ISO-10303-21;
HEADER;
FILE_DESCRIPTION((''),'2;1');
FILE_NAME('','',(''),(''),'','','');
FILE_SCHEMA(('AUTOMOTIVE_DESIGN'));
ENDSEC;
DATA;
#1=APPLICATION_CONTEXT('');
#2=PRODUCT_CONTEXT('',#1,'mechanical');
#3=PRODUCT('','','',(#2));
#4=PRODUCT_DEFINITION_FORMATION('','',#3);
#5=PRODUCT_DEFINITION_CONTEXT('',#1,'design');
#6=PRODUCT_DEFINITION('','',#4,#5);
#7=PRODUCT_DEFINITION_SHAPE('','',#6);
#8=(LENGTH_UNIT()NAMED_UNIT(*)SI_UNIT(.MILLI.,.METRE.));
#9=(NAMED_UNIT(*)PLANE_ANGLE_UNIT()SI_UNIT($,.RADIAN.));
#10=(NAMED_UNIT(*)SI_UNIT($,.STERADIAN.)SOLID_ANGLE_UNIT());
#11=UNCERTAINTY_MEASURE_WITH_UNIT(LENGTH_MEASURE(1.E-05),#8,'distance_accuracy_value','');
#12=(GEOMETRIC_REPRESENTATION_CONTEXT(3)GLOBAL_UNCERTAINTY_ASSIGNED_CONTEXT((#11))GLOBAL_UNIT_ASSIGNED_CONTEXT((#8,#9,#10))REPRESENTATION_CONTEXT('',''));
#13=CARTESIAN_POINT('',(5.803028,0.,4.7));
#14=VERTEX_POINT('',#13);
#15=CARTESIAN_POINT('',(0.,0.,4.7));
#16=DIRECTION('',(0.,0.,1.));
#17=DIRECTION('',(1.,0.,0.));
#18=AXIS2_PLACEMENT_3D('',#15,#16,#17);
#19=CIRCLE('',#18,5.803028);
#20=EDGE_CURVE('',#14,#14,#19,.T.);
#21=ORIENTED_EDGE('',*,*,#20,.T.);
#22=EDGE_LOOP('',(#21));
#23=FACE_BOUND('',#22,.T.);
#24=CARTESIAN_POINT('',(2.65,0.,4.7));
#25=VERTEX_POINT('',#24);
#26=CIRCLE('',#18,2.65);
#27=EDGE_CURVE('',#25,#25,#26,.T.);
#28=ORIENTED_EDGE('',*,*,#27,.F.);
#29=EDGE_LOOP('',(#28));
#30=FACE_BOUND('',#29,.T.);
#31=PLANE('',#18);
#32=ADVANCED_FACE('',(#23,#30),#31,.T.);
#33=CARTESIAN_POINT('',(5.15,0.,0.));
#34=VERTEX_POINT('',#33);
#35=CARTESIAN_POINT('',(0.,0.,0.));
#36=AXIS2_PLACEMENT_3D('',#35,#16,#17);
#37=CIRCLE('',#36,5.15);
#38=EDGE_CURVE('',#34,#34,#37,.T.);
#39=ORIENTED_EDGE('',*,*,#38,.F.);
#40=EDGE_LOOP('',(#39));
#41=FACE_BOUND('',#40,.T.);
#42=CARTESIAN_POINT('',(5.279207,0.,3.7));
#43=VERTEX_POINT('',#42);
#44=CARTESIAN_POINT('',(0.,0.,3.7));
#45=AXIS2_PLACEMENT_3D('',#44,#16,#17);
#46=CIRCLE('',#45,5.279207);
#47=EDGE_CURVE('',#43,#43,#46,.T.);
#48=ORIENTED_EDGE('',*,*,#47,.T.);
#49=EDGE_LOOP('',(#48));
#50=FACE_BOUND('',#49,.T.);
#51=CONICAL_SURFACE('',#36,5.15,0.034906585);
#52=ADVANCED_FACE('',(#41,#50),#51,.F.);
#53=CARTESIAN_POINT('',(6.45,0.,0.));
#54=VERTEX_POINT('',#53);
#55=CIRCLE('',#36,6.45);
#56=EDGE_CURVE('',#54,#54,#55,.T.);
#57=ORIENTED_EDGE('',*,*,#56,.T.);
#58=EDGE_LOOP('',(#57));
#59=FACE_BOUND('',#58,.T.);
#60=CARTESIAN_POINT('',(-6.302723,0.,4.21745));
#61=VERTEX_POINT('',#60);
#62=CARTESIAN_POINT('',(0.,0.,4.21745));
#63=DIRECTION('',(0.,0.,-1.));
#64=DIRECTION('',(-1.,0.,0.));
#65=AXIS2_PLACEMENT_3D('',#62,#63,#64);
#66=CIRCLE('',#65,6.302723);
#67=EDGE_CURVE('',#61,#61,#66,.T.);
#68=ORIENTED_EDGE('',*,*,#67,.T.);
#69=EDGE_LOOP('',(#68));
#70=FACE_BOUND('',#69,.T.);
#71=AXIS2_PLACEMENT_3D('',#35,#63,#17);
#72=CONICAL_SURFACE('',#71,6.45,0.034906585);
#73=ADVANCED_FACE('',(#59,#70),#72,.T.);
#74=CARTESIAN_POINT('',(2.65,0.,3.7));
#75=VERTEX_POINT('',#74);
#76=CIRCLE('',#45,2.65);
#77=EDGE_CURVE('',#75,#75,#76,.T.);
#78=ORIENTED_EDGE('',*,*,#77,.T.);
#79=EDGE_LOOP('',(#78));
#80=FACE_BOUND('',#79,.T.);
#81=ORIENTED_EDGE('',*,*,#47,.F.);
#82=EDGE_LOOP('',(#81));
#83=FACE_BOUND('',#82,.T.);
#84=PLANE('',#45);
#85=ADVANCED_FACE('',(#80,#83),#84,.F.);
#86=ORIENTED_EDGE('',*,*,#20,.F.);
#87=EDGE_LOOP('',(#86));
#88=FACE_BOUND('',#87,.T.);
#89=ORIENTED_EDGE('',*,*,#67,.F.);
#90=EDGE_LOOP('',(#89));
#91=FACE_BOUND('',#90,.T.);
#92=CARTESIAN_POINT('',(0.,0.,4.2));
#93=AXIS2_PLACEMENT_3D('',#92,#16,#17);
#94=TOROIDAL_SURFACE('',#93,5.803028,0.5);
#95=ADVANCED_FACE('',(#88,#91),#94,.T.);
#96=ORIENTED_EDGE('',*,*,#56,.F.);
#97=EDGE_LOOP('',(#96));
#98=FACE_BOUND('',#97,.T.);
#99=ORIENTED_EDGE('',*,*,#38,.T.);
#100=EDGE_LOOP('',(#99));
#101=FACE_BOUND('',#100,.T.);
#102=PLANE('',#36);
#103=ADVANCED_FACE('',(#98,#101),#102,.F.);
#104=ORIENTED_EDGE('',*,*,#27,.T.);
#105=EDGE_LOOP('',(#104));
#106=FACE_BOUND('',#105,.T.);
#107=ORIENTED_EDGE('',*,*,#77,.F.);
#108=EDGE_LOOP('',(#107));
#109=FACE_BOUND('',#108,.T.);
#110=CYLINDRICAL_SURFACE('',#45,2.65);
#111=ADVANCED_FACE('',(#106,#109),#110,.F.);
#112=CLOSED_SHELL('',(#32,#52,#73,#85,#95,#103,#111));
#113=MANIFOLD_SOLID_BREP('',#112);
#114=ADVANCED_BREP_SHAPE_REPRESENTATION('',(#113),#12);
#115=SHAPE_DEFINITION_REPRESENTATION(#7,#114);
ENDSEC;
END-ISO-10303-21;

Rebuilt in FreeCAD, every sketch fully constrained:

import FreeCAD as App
import Part
import Sketcher

V = App.Vector
Q = App.Units.Quantity


def edges_at(feature, points):
    """Names of the edges that pass closest to the given points."""
    edges = feature.Shape.Edges
    near = lambda p: min(range(len(edges)), key=lambda i: edges[i].distToShape(Part.Vertex(*p))[0])
    return sorted({f"Edge{near(p) + 1}" for p in points})


def faces_at(feature, points):
    """Names of the faces that lie closest to the given points."""
    faces = feature.Shape.Faces
    near = lambda p: min(range(len(faces)), key=lambda i: faces[i].distToShape(Part.Vertex(*p))[0])
    return sorted({f"Face{near(p) + 1}" for p in points})

doc = App.newDocument("Part")
body = doc.addObject("PartDesign::Body", "Body")

# Sketch on XY plane
sketch1 = body.newObject("Sketcher::SketchObject", "Sketch")
sketch1.AttachmentSupport = (doc.getObject("XY_Plane"), [""])
sketch1.MapMode = "FlatFace"
sketch1.addGeometry(Part.Circle(V(0, 0, 0), V(0, 0, 1), 6), False)
sketch1.addGeometry(Part.Circle(V(0, 0, 0), V(0, 0, 1), 5), False)
sketch1.addConstraint(Sketcher.Constraint("Coincident", 0, 3, -1, 1))
sketch1.addConstraint(Sketcher.Constraint("Coincident", 1, 3, -1, 1))
sketch1.addConstraint(Sketcher.Constraint("Diameter", 0, Q("12.9 mm")))
sketch1.addConstraint(Sketcher.Constraint("Diameter", 1, Q("10.3 mm")))
pad1 = body.newObject("PartDesign::Pad", "Pad")
pad1.Profile = sketch1
pad1.Length = 4.7
doc.recompute()

draft = body.newObject("PartDesign::Draft", "Draft")
draft.Base = (pad1, faces_at(pad1, [(-6.45, 0, 2.35), (-5.15, 0, 2.35)]))
draft.NeutralPlane = (doc.getObject("XY_Plane"), [""])
draft.Angle = 2
draft.Reversed = False

# Sketch on XY plane
sketch2 = body.newObject("Sketcher::SketchObject", "Sketch001")
sketch2.AttachmentSupport = (doc.getObject("XY_Plane"), [""])
sketch2.MapMode = "FlatFace"
sketch2.AttachmentOffset = App.Placement(V(0, 0, 4.7), App.Rotation())
sketch2.addGeometry(Part.Circle(V(0, 0, 0), V(0, 0, 1), 6.3), False)
sketch2.addGeometry(Part.Circle(V(0, 0, 0), V(0, 0, 1), 2.6), False)
sketch2.addConstraint(Sketcher.Constraint("Coincident", 0, 3, -1, 1))
sketch2.addConstraint(Sketcher.Constraint("Coincident", 1, 3, -1, 1))
sketch2.addConstraint(Sketcher.Constraint("Diameter", 1, Q("5.3 mm")))
sketch2.addConstraint(Sketcher.Constraint("Diameter", 0, Q("12.571745 mm")))
pad2 = body.newObject("PartDesign::Pad", "Pad001")
pad2.Profile = sketch2
pad2.Length = 1
pad2.Reversed = True
doc.recompute()

fillet = body.newObject("PartDesign::Fillet", "Fillet")
fillet.Base = (pad2, edges_at(pad2, [(-6.286, 0, 4.7)]))
fillet.Radius = 0.5

doc.recompute()
